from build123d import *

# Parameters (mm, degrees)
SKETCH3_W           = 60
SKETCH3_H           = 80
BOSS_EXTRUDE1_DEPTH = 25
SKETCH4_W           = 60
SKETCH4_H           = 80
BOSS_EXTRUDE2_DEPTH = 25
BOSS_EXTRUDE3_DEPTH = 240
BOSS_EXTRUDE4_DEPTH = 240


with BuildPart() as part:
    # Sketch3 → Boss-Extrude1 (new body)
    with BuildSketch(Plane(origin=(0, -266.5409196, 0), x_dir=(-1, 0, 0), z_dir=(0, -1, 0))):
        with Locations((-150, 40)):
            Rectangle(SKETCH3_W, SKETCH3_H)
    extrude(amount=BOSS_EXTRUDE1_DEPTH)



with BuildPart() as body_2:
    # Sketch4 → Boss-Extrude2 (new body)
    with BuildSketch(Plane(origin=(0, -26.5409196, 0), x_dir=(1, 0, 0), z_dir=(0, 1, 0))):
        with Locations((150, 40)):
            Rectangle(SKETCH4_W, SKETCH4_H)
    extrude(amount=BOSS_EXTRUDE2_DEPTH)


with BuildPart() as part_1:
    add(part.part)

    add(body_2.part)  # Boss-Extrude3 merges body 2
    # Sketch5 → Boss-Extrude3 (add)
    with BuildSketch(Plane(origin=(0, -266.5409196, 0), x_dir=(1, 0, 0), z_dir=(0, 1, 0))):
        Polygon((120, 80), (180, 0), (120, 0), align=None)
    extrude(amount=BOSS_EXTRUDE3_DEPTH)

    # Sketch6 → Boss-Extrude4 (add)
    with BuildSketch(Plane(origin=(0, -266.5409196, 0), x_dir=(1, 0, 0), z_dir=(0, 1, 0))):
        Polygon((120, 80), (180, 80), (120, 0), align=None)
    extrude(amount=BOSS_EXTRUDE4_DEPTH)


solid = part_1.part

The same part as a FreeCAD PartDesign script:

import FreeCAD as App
import Part
import Sketcher

V = App.Vector

doc = App.newDocument("Part")
body = doc.addObject("PartDesign::Body", "Body")

# Sketch on XZ plane
sketch1 = body.newObject("Sketcher::SketchObject", "Sketch")
sketch1.AttachmentSupport = (doc.getObject("XZ_Plane"), [""])
sketch1.MapMode = "FlatFace"
sketch1.AttachmentOffset = App.Placement(V(0, 0, 266.54092), App.Rotation())
sketch1.addGeometry([
    Part.LineSegment(V(180, -80, 0), V(180, 0, 0)),
    Part.LineSegment(V(180, 0, 0), V(120, 0, 0)),
    Part.LineSegment(V(120, 0, 0), V(120, -80, 0)),
    Part.LineSegment(V(120, -80, 0), V(180, -80, 0)),
], False)
sketch1.addConstraint([
    Sketcher.Constraint("Coincident", 0, 2, 1, 1),
    Sketcher.Constraint("Coincident", 1, 2, 2, 1),
    Sketcher.Constraint("Coincident", 2, 2, 3, 1),
    Sketcher.Constraint("Coincident", 3, 2, 0, 1),
    Sketcher.Constraint("Vertical", 0),
    Sketcher.Constraint("Horizontal", 1),
    Sketcher.Constraint("Vertical", 2),
    Sketcher.Constraint("Horizontal", 3),
    Sketcher.Constraint("PointOnObject", 0, 2, -1),
    Sketcher.Constraint("DistanceX", 1, 2, 1, 1, 60.0),
    Sketcher.Constraint("DistanceY", 0, 1, 0, 2, 80.0),
    Sketcher.Constraint("DistanceX", -1, 1, 0, 2, 180.0),
])
pad1 = body.newObject("PartDesign::Pad", "Pad")
pad1.Profile = sketch1
pad1.Length = 25
body2 = doc.addObject("PartDesign::Body", "Body001")

# Sketch on XZ plane
sketch2 = body2.newObject("Sketcher::SketchObject", "Sketch001")
sketch2.AttachmentSupport = (doc.getObject("XZ_Plane001"), [""])
sketch2.MapMode = "FlatFace"
sketch2.AttachmentOffset = App.Placement(V(0, 0, 26.54092), App.Rotation())
sketch2.addGeometry([
    Part.LineSegment(V(120, -80, 0), V(120, 0, 0)),
    Part.LineSegment(V(120, 0, 0), V(180, 0, 0)),
    Part.LineSegment(V(180, 0, 0), V(180, -80, 0)),
    Part.LineSegment(V(180, -80, 0), V(120, -80, 0)),
], False)
sketch2.addConstraint([
    Sketcher.Constraint("Coincident", 0, 2, 1, 1),
    Sketcher.Constraint("Coincident", 1, 2, 2, 1),
    Sketcher.Constraint("Coincident", 2, 2, 3, 1),
    Sketcher.Constraint("Coincident", 3, 2, 0, 1),
    Sketcher.Constraint("Vertical", 0),
    Sketcher.Constraint("Horizontal", 1),
    Sketcher.Constraint("Vertical", 2),
    Sketcher.Constraint("Horizontal", 3),
    Sketcher.Constraint("PointOnObject", 0, 2, -1),
    Sketcher.Constraint("DistanceX", 1, 1, 1, 2, 60.0),
    Sketcher.Constraint("DistanceY", 0, 1, 0, 2, 80.0),
    Sketcher.Constraint("DistanceX", -1, 1, 0, 2, 120.0),
])
pad2 = body2.newObject("PartDesign::Pad", "Pad001")
pad2.Profile = sketch2
pad2.Length = 25
pad2.Reversed = True
body.AllowCompound = True
doc.recompute()

boolean = body.newObject("PartDesign::Boolean", "Boolean")
boolean.Type = "Fuse"
boolean.addObjects([body2])

# Sketch on XZ plane
sketch3 = body.newObject("Sketcher::SketchObject", "Sketch002")
sketch3.AttachmentSupport = (doc.getObject("XZ_Plane"), [""])
sketch3.MapMode = "FlatFace"
sketch3.AttachmentOffset = App.Placement(V(0, 0, 266.54092), App.Rotation())
sketch3.addGeometry([
    Part.LineSegment(V(180, 0, 0), V(120, -80, 0)),
    Part.LineSegment(V(120, -80, 0), V(120, 0, 0)),
    Part.LineSegment(V(120, 0, 0), V(180, 0, 0)),
], False)
sketch3.addConstraint([
    Sketcher.Constraint("Coincident", 0, 2, 1, 1),
    Sketcher.Constraint("Coincident", 1, 2, 2, 1),
    Sketcher.Constraint("Coincident", 2, 2, 0, 1),
    Sketcher.Constraint("Vertical", 1),
    Sketcher.Constraint("Horizontal", 2),
    Sketcher.Constraint("PointOnObject", 1, 2, -1),
    Sketcher.Constraint("DistanceX", 2, 1, 2, 2, 60.0),
    Sketcher.Constraint("DistanceY", 1, 1, 1, 2, 80.0),
    Sketcher.Constraint("DistanceX", -1, 1, 0, 2, 120.0),
])
pad3 = body.newObject("PartDesign::Pad", "Pad002")
pad3.Profile = sketch3
pad3.Length = 240
pad3.Reversed = True

# Sketch on XZ plane
sketch4 = body.newObject("Sketcher::SketchObject", "Sketch003")
sketch4.AttachmentSupport = (doc.getObject("XZ_Plane"), [""])
sketch4.MapMode = "FlatFace"
sketch4.AttachmentOffset = App.Placement(V(0, 0, 266.54092), App.Rotation())
sketch4.addGeometry([
    Part.LineSegment(V(180, -80, 0), V(120, -80, 0)),
    Part.LineSegment(V(120, -80, 0), V(120, 0, 0)),
    Part.LineSegment(V(120, 0, 0), V(180, -80, 0)),
], False)
sketch4.addConstraint([
    Sketcher.Constraint("Coincident", 0, 2, 1, 1),
    Sketcher.Constraint("Coincident", 1, 2, 2, 1),
    Sketcher.Constraint("Coincident", 2, 2, 0, 1),
    Sketcher.Constraint("Horizontal", 0),
    Sketcher.Constraint("Vertical", 1),
    Sketcher.Constraint("PointOnObject", 1, 2, -1),
    Sketcher.Constraint("DistanceX", 0, 2, 0, 1, 60.0),
    Sketcher.Constraint("DistanceY", 1, 1, 1, 2, 80.0),
    Sketcher.Constraint("DistanceX", -1, 1, 0, 2, 120.0),
])
pad4 = body.newObject("PartDesign::Pad", "Pad003")
pad4.Profile = sketch4
pad4.Length = 240
pad4.Reversed = True

doc.recompute()
